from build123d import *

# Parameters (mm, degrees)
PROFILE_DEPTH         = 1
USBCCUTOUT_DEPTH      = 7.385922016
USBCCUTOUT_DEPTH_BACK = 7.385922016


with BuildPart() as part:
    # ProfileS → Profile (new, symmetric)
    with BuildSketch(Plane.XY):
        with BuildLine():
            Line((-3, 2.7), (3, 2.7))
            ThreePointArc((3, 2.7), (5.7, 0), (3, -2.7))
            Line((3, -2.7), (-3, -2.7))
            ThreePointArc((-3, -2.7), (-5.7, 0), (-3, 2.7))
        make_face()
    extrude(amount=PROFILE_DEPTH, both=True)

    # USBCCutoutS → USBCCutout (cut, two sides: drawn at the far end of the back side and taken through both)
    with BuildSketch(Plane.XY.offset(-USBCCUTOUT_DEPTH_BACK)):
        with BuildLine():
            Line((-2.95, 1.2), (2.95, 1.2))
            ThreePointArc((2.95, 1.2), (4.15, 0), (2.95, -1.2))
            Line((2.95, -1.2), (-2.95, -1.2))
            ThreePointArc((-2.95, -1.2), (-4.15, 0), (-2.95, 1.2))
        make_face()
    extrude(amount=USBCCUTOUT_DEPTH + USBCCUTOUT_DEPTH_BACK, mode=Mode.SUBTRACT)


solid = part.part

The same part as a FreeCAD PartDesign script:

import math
import FreeCAD as App
import Part
import Sketcher
from FreeCAD import Vector

doc = App.newDocument("Part")
body = doc.addObject("PartDesign::Body", "Body")

sketch1 = body.newObject("Sketcher::SketchObject", "Sketch")
sketch1.AttachmentSupport = (doc.getObject("XY_Plane"), [""])
sketch1.MapMode = "FlatFace"
sketch1.addGeometry([
    Part.LineSegment(Vector(3, 2.7, 0), Vector(-3, 2.7, 0)),
    Part.ArcOfCircle(Part.Circle(Vector(-3, 0, 0), Vector(0, 0, 1), 2.7), math.radians(90), math.radians(270)),
    Part.LineSegment(Vector(-3, -2.7, 0), Vector(3, -2.7, 0)),
    Part.ArcOfCircle(Part.Circle(Vector(3, 0, 0), Vector(0, 0, 1), 2.7), math.radians(-90), math.radians(90)),
], False)
sketch1.addConstraint([
    Sketcher.Constraint("Tangent", 0, 2, 1, 1),
    Sketcher.Constraint("Tangent", 1, 2, 2, 1),
    Sketcher.Constraint("Tangent", 2, 2, 3, 1),
    Sketcher.Constraint("Tangent", 3, 2, 0, 1),
    Sketcher.Constraint("Horizontal", 0),
    Sketcher.Constraint("Horizontal", 2),
    Sketcher.Constraint("Symmetric", 1, 3, 3, 3, -1, 1),
    Sketcher.Constraint("Radius", 1, 2.7),
    Sketcher.Constraint("DistanceX", 0, 2, 0, 1, 6.0),
])
pad1 = body.newObject("PartDesign::Pad", "Pad")
pad1.Profile = sketch1
pad1.Length = 2
pad1.Midplane = True

sketch2 = body.newObject("Sketcher::SketchObject", "Sketch001")
sketch2.AttachmentSupport = (doc.getObject("XY_Plane"), [""])
sketch2.MapMode = "FlatFace"
sketch2.addGeometry([
    Part.LineSegment(Vector(3, 1.2, 0), Vector(-3, 1.2, 0)),
    Part.ArcOfCircle(Part.Circle(Vector(-3, 0, 0), Vector(0, 0, 1), 1.2), math.radians(90), math.radians(270)),
    Part.LineSegment(Vector(-3, -1.2, 0), Vector(3, -1.2, 0)),
    Part.ArcOfCircle(Part.Circle(Vector(3, 0, 0), Vector(0, 0, 1), 1.2), math.radians(-90), math.radians(90)),
], False)
sketch2.addConstraint([
    Sketcher.Constraint("Tangent", 0, 2, 1, 1),
    Sketcher.Constraint("Tangent", 1, 2, 2, 1),
    Sketcher.Constraint("Tangent", 2, 2, 3, 1),
    Sketcher.Constraint("Tangent", 3, 2, 0, 1),
    Sketcher.Constraint("Horizontal", 0),
    Sketcher.Constraint("Horizontal", 2),
    Sketcher.Constraint("Symmetric", 1, 3, 3, 3, -1, 1),
    Sketcher.Constraint("Radius", 1, 1.2),
    Sketcher.Constraint("DistanceX", 0, 2, 0, 1, 5.9),
])
pocket1 = body.newObject("PartDesign::Pocket", "Pocket")
pocket1.Profile = sketch2
pocket1.Type = "ThroughAll"
pocket1.Midplane = True

doc.recompute()
